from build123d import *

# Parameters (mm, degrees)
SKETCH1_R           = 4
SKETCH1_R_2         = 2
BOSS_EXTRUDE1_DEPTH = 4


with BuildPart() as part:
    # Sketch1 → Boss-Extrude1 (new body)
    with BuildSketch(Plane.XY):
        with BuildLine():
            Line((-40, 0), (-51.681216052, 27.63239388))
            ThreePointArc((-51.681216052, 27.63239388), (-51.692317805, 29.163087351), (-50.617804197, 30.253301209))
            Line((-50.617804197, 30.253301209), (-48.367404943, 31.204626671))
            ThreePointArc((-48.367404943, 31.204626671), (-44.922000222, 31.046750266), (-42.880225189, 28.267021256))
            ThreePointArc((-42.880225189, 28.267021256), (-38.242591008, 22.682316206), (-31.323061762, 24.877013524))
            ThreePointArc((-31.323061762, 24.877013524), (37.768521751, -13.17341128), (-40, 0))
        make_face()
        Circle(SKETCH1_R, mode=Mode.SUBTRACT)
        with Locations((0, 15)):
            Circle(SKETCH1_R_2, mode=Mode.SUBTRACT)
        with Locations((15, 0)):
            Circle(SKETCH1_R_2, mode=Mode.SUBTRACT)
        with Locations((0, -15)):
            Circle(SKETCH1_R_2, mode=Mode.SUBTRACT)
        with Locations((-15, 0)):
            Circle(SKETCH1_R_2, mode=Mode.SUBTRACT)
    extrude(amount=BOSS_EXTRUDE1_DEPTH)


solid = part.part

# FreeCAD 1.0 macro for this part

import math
import FreeCAD as App
import Part
import Sketcher

doc = App.newDocument("Part")
body = doc.addObject("PartDesign::Body", "Body")

# Sketch on XY plane
sketch1 = body.newObject("Sketcher::SketchObject", "Sketch")
sketch1.AttachmentSupport = (doc.getObject("XY_Plane"), [""])
sketch1.MapMode = "FlatFace"
sketch1.addGeometry(Part.LineSegment(App.Vector(-51.7, 27.6, 0), App.Vector(-40, 0, 0)), False)
sketch1.addGeometry(Part.ArcOfCircle(Part.Circle(App.Vector(0, 0, 0), App.Vector(0, 0, 1), 40), math.radians(180), math.radians(502)), False)
sketch1.addGeometry(Part.ArcOfCircle(Part.Circle(App.Vector(-36.4, 28.9, 0), App.Vector(0, 0, 1), 6.5), math.radians(-174), math.radians(-38)), False)
sketch1.addGeometry(Part.ArcOfCircle(Part.Circle(App.Vector(-46.8, 27.5, 0), App.Vector(0, 0, 1), 4), math.radians(11), math.radians(113)), False)
sketch1.addGeometry(Part.LineSegment(App.Vector(-48.4, 31.2, 0), App.Vector(-50.6, 30.3, 0)), False)
sketch1.addGeometry(Part.ArcOfCircle(Part.Circle(App.Vector(-49.8, 28.4, 0), App.Vector(0, 0, 1), 2), math.radians(113), math.radians(203)), False)
sketch1.addGeometry(Part.Circle(App.Vector(0, -15, 0), App.Vector(0, 0, 1), 2), False)
sketch1.addGeometry(Part.Circle(App.Vector(15, 0, 0), App.Vector(0, 0, 1), 2), False)
sketch1.addGeometry(Part.Circle(App.Vector(0, 0, 0), App.Vector(0, 0, 1), 4), False)
sketch1.addGeometry(Part.Circle(App.Vector(-15, 0, 0), App.Vector(0, 0, 1), 2), False)
sketch1.addGeometry(Part.Circle(App.Vector(0, 15, 0), App.Vector(0, 0, 1), 2), False)
sketch1.addConstraint(Sketcher.Constraint("Coincident", 0, 2, 1, 1))
sketch1.addConstraint(Sketcher.Constraint("Tangent", 1, 2, 2, 2))
sketch1.addConstraint(Sketcher.Constraint("Coincident", 2, 1, 3, 1))
sketch1.addConstraint(Sketcher.Constraint("Tangent", 3, 2, 4, 1))
sketch1.addConstraint(Sketcher.Constraint("Tangent", 4, 2, 5, 1))
sketch1.addConstraint(Sketcher.Constraint("Tangent", 5, 2, 0, 1))
sketch1.addConstraint(Sketcher.Constraint("Coincident", 1, 3, -1, 1))
sketch1.addConstraint(Sketcher.Constraint("Coincident", 8, 3, -1, 1))
sketch1.addConstraint(Sketcher.Constraint("Equal", 5, 6))
sketch1.addConstraint(Sketcher.Constraint("Equal", 6, 7))
sketch1.addConstraint(Sketcher.Constraint("Equal", 3, 8))
sketch1.addConstraint(Sketcher.Constraint("Equal", 7, 9))
sketch1.addConstraint(Sketcher.Constraint("Equal", 9, 10))
sketch1.addConstraint(Sketcher.Constraint("Symmetric", 7, 3, 9, 3, -1, 1))
sketch1.addConstraint(Sketcher.Constraint("Symmetric", 6, 3, 10, 3, -1, 1))
sketch1.addConstraint(Sketcher.Constraint("PointOnObject", 6, 3, -2))
sketch1.addConstraint(Sketcher.Constraint("PointOnObject", 7, 3, -1))
sketch1.addConstraint(Sketcher.Constraint("PointOnObject", 0, 2, -1))
sketch1.addConstraint(Sketcher.Constraint("Perpendicular", 0, 4))
sketch1.addConstraint(Sketcher.Constraint("Diameter", 6, 4.0))
sketch1.addConstraint(Sketcher.Constraint("Diameter", 8, 8.0))
sketch1.addConstraint(Sketcher.Constraint("Radius", 1, 40.0))
sketch1.addConstraint(Sketcher.Constraint("Radius", 2, 6.5))
sketch1.addConstraint(Sketcher.Constraint("Distance", 0, 30.0))
sketch1.addConstraint(Sketcher.Constraint("DistanceY", 6, 3, -1, 1, 15.0))
sketch1.addConstraint(Sketcher.Constraint("DistanceX", -1, 1, 7, 3, 15.0))
sketch1.addConstraint(Sketcher.Constraint("DistanceY", -1, 1, 4, 2, 30.253301))
sketch1.addConstraint(Sketcher.Constraint("DistanceY", 2, 3, 3, 2, 2.285098))
sketch1.addConstraint(Sketcher.Constraint("DistanceX", 4, 2, 3, 2, 2.250399))
pad1 = body.newObject("PartDesign::Pad", "Pad")
pad1.Profile = sketch1
pad1.Length = 4

doc.recompute()
